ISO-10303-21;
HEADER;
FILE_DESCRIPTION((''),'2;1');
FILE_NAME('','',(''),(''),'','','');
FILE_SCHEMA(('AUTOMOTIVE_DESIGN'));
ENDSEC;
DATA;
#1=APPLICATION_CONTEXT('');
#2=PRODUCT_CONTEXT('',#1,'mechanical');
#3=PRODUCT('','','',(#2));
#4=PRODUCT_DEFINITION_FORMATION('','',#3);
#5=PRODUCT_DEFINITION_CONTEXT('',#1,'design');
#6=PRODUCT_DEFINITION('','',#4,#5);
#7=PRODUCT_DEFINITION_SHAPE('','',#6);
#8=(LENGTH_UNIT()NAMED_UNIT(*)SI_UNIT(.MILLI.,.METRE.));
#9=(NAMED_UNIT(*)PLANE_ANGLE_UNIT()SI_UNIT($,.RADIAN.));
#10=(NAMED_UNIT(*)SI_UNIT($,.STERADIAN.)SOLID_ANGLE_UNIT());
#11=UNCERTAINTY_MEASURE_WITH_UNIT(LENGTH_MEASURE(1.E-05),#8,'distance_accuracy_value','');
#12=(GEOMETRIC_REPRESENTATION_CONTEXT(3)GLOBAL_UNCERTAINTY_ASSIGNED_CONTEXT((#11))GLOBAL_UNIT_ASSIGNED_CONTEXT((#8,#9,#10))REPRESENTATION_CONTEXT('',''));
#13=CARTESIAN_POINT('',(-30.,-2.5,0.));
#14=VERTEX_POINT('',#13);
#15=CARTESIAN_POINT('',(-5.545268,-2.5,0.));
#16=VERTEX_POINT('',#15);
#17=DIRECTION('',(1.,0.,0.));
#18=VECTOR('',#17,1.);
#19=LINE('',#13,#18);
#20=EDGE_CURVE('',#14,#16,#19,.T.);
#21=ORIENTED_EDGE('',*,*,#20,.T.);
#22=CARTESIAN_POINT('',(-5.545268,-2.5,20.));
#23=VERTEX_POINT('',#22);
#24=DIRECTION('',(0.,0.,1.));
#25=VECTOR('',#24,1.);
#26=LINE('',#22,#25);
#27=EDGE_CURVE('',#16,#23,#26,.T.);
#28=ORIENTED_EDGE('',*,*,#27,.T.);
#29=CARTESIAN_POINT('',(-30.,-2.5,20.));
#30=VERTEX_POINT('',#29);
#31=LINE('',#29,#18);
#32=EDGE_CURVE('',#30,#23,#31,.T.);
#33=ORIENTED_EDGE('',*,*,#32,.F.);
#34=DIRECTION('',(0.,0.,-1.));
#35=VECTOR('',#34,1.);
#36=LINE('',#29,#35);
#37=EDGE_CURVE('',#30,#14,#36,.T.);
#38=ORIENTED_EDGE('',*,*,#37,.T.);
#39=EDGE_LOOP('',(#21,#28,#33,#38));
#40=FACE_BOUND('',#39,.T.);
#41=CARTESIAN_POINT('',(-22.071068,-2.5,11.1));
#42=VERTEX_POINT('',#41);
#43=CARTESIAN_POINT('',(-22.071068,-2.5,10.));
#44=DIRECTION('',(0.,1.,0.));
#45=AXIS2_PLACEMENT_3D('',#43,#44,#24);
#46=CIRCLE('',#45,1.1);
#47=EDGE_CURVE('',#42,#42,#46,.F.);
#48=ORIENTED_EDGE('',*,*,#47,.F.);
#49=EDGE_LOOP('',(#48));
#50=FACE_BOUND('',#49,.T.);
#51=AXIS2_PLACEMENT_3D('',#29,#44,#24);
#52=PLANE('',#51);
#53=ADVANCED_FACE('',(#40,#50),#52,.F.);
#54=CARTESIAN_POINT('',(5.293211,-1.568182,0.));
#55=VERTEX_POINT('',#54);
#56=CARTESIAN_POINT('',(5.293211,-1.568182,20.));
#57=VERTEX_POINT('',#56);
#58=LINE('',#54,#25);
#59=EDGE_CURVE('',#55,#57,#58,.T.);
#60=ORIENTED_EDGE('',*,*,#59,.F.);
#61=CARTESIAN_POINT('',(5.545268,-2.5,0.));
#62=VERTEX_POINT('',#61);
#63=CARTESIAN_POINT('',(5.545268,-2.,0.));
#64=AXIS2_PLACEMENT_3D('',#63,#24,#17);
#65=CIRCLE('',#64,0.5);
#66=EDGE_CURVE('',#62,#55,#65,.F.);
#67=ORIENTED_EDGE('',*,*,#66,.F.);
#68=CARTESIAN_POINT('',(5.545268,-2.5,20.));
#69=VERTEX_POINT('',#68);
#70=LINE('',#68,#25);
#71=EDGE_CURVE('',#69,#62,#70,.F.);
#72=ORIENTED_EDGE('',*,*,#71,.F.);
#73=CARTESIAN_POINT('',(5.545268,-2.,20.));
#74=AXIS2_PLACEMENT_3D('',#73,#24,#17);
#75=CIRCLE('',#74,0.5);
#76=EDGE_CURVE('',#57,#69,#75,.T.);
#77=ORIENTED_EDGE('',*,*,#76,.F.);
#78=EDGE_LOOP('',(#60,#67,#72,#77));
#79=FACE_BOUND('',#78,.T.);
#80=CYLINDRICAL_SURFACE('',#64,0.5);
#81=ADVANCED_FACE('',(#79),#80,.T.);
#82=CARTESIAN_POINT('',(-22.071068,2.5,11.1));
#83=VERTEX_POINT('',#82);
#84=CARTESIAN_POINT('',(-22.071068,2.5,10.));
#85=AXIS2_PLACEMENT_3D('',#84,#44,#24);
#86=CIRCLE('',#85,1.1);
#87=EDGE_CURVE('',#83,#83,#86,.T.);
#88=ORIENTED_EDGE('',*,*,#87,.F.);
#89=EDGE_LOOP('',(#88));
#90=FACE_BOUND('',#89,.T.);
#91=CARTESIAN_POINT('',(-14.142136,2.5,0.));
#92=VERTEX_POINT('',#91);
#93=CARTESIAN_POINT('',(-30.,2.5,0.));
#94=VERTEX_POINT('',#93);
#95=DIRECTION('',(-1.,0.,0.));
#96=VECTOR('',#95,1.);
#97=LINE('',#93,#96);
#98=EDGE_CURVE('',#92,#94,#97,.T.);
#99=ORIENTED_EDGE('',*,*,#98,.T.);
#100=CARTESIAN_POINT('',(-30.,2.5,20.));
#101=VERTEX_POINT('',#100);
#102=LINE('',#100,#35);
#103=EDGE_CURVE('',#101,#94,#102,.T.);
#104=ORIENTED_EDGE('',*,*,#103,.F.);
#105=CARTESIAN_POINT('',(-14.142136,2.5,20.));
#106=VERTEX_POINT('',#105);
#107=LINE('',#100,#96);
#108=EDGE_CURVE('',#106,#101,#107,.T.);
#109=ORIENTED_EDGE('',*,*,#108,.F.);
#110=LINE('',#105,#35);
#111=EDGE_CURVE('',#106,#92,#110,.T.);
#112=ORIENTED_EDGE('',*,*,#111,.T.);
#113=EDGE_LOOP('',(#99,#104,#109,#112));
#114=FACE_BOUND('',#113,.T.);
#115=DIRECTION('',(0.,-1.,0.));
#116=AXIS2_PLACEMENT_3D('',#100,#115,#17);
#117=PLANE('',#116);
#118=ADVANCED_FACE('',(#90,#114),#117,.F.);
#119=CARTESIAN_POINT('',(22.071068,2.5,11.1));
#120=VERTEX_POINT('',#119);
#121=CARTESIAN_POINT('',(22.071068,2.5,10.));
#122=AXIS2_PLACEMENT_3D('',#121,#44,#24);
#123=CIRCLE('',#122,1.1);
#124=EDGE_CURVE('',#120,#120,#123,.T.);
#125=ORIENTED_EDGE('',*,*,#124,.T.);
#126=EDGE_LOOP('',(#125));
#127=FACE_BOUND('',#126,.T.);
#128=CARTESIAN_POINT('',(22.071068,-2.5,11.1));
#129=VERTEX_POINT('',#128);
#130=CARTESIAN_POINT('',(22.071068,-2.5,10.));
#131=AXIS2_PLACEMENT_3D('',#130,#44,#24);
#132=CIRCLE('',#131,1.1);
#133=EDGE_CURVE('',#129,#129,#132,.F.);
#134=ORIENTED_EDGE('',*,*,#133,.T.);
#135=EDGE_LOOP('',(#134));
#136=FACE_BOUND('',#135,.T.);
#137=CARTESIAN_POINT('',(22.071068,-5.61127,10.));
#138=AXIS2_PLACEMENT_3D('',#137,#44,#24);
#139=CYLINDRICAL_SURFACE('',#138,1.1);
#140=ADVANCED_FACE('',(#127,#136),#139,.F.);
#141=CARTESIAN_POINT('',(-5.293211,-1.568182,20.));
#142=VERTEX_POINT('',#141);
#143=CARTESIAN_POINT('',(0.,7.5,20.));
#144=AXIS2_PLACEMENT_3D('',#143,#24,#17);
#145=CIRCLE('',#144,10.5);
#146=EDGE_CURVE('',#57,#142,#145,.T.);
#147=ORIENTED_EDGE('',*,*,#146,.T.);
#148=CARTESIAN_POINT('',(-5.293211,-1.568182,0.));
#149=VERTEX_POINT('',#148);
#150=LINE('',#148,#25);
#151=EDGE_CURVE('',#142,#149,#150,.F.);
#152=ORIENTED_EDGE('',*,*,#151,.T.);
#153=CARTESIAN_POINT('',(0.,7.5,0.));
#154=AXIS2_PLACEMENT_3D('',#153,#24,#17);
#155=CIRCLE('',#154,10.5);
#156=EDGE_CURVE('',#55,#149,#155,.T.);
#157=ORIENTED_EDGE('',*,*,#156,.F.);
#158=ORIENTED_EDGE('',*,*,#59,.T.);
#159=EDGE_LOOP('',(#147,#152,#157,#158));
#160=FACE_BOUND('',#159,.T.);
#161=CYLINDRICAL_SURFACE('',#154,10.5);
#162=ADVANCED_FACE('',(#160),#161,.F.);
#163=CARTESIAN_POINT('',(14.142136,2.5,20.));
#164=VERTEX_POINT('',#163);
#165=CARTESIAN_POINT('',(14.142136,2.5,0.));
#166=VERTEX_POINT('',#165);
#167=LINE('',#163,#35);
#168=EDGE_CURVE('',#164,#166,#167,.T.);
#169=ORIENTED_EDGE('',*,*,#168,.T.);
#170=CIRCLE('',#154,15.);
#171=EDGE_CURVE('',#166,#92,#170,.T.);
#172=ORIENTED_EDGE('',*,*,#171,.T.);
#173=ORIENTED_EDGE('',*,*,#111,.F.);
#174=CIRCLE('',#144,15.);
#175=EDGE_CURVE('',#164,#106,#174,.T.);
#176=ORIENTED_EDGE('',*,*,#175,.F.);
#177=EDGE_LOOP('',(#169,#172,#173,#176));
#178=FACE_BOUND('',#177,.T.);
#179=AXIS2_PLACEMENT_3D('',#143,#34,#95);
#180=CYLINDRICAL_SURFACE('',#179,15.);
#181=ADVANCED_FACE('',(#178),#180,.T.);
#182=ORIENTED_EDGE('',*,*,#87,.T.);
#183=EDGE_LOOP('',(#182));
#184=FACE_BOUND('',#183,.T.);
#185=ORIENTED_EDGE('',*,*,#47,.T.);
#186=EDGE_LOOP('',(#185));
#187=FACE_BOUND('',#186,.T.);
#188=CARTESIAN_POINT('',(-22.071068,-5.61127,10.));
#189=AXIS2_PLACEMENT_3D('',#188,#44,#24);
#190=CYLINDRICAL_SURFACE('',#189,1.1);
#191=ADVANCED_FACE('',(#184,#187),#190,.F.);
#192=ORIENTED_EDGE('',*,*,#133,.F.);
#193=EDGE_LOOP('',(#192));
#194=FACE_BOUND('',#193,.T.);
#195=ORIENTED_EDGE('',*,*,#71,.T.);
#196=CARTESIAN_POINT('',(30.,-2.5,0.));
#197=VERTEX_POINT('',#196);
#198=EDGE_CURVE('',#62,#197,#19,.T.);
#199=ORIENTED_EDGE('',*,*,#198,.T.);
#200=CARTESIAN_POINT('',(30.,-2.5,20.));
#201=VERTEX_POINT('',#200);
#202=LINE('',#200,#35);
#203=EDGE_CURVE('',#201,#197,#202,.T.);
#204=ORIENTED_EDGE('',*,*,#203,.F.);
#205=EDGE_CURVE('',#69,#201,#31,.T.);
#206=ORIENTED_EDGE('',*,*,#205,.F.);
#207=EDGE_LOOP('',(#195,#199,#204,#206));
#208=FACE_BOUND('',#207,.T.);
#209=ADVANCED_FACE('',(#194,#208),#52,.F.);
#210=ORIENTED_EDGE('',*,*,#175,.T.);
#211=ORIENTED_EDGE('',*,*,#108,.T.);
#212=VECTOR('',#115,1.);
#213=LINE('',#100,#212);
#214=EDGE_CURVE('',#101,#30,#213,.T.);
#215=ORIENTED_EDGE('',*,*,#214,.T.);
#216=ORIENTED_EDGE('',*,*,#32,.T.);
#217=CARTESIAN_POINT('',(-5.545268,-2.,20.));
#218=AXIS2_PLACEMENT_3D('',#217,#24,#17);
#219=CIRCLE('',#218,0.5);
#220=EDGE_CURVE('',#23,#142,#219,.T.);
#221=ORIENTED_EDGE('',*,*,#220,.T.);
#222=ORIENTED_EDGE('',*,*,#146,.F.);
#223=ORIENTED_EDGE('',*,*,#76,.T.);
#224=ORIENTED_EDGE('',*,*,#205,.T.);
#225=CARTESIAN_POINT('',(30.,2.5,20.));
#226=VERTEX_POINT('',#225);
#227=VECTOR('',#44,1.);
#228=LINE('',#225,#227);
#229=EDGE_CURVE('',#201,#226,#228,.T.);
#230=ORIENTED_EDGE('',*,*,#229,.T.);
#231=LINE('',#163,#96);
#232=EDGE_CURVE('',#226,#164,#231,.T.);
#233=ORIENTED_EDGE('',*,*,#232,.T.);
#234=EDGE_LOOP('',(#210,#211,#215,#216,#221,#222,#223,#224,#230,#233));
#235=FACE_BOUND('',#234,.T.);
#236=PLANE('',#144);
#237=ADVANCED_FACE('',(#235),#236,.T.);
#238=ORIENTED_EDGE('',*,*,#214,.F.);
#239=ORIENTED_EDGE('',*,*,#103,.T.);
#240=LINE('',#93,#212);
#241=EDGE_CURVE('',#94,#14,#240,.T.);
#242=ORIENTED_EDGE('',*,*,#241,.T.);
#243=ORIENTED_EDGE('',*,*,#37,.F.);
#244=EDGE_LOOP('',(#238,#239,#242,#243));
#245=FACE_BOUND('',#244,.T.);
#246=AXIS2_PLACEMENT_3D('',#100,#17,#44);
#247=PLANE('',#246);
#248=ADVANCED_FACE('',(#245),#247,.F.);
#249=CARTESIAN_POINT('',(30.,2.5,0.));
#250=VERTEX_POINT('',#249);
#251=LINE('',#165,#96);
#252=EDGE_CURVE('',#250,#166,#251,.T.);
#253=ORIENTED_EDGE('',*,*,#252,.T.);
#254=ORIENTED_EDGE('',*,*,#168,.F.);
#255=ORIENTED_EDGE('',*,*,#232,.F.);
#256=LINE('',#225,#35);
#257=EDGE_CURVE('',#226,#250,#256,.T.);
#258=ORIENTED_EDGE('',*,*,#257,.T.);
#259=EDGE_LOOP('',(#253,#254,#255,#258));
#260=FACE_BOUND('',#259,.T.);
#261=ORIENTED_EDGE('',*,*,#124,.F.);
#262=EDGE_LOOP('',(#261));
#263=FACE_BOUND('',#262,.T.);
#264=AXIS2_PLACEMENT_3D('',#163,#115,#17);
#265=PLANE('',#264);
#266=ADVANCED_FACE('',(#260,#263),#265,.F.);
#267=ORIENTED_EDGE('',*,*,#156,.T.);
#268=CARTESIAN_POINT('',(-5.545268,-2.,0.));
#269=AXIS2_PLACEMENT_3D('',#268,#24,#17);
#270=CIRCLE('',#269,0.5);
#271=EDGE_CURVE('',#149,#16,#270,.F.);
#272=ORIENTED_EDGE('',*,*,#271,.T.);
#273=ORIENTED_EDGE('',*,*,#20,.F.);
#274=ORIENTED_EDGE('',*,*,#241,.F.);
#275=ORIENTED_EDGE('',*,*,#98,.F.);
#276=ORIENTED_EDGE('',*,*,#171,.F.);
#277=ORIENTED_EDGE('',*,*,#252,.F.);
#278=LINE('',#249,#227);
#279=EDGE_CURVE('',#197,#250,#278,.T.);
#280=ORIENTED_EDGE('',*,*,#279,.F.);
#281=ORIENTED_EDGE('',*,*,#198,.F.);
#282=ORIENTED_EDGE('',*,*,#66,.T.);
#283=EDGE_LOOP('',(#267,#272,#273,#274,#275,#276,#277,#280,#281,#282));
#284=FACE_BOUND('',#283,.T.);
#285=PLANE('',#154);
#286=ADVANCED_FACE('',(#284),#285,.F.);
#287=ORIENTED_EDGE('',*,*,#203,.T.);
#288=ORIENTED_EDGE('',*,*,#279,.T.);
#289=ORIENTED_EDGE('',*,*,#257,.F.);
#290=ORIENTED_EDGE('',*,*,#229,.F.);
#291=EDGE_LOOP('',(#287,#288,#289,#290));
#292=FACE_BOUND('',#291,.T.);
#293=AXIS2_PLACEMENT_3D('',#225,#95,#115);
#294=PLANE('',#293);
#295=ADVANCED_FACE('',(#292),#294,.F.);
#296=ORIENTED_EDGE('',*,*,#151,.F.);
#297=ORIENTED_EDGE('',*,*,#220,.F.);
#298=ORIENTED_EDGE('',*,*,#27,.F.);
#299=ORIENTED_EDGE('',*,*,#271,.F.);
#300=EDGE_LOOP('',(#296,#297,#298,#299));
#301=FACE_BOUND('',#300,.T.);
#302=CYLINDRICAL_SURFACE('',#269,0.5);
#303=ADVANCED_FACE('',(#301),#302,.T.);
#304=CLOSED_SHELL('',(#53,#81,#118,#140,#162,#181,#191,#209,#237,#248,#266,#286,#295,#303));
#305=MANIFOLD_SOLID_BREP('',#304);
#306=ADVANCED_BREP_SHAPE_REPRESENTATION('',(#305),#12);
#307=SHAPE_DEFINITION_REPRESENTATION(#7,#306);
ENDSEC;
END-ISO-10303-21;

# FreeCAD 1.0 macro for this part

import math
import FreeCAD as App
import Part
import Sketcher
from FreeCAD import Vector


def edges_at(feature, points):
    """Names of the edges that pass closest to the given points."""
    edges = feature.Shape.Edges
    near = lambda p: min(range(len(edges)), key=lambda i: edges[i].distToShape(Part.Vertex(*p))[0])
    return sorted({f"Edge{near(p) + 1}" for p in points})

doc = App.newDocument("Part")
body = doc.addObject("PartDesign::Body", "Body")

# Sketch on XY plane
sketch1 = body.newObject("Sketcher::SketchObject", "Sketch")
sketch1.AttachmentSupport = (doc.getObject("XY_Plane"), [""])
sketch1.MapMode = "FlatFace"
sketch1.addGeometry(Part.LineSegment(Vector(30, 2, 0), Vector(14, 2, 0)), False)
sketch1.addGeometry(Part.ArcOfCircle(Part.Circle(Vector(0, 8, 0), Vector(0, 0, 1), 15), math.radians(-19), math.radians(199)), False)
sketch1.addGeometry(Part.LineSegment(Vector(-14, 2, 0), Vector(-30, 2, 0)), False)
sketch1.addGeometry(Part.LineSegment(Vector(-30, 2, 0), Vector(-30, -2, 0)), False)
sketch1.addGeometry(Part.LineSegment(Vector(-30, -2, 0), Vector(30, -2, 0)), False)
sketch1.addGeometry(Part.LineSegment(Vector(30, -2, 0), Vector(30, 2, 0)), False)
sketch1.addConstraint(Sketcher.Constraint("Coincident", 0, 2, 1, 1))
sketch1.addConstraint(Sketcher.Constraint("Coincident", 1, 2, 2, 1))
sketch1.addConstraint(Sketcher.Constraint("Coincident", 2, 2, 3, 1))
sketch1.addConstraint(Sketcher.Constraint("Coincident", 3, 2, 4, 1))
sketch1.addConstraint(Sketcher.Constraint("Coincident", 4, 2, 5, 1))
sketch1.addConstraint(Sketcher.Constraint("Coincident", 5, 2, 0, 1))
sketch1.addConstraint(Sketcher.Constraint("Horizontal", 0))
sketch1.addConstraint(Sketcher.Constraint("Horizontal", 2))
sketch1.addConstraint(Sketcher.Constraint("Vertical", 3))
sketch1.addConstraint(Sketcher.Constraint("Horizontal", 4))
sketch1.addConstraint(Sketcher.Constraint("Vertical", 5))
sketch1.addConstraint(Sketcher.Constraint("Symmetric", 2, 2, 4, 2, -1, 1))
sketch1.addConstraint(Sketcher.Constraint("Symmetric", 0, 2, 1, 2, -2))
sketch1.addConstraint(Sketcher.Constraint("Radius", 1, 15.0))
sketch1.addConstraint(Sketcher.Constraint("DistanceX", 4, 1, 4, 2, 60.0))
sketch1.addConstraint(Sketcher.Constraint("DistanceY", 3, 2, 3, 1, 5.0))
sketch1.addConstraint(Sketcher.Constraint("DistanceY", 0, 2, 1, 3, 5.0))
pad1 = body.newObject("PartDesign::Pad", "Pad")
pad1.Profile = sketch1
pad1.Length = 20

# Sketch on XY plane
sketch2 = body.newObject("Sketcher::SketchObject", "Sketch001")
sketch2.AttachmentSupport = (doc.getObject("XY_Plane"), [""])
sketch2.MapMode = "FlatFace"
sketch2.AttachmentOffset = App.Placement(Vector(0, 0, 20), App.Rotation())
sketch2.addGeometry(Part.Circle(Vector(0, 8, 0), Vector(0, 0, 1), 10), False)
sketch2.addConstraint(Sketcher.Constraint("PointOnObject", 0, 3, -2))
sketch2.addConstraint(Sketcher.Constraint("Diameter", 0, 21.0))
sketch2.addConstraint(Sketcher.Constraint("DistanceY", -1, 1, 0, 3, 7.5))
pocket1 = body.newObject("PartDesign::Pocket", "Pocket")
pocket1.Profile = sketch2
pocket1.Type = "ThroughAll"

# Sketch on XZ plane
sketch3 = body.newObject("Sketcher::SketchObject", "Sketch002")
sketch3.AttachmentSupport = (doc.getObject("XZ_Plane"), [""])
sketch3.MapMode = "FlatFace"
sketch3.AttachmentOffset = App.Placement(Vector(0, 0, -2.5), App.Rotation())
sketch3.addGeometry(Part.Circle(Vector(-22.1, 10, 0), Vector(0, 0, 1), 1.1), False)
sketch3.addGeometry(Part.Circle(Vector(22.1, 10, 0), Vector(0, 0, 1), 1.1), False)
sketch3.addConstraint(Sketcher.Constraint("Equal", 0, 1))
sketch3.addConstraint(Sketcher.Constraint("Symmetric", 0, 3, 1, 3, -2))
sketch3.addConstraint(Sketcher.Constraint("Diameter", 0, 2.2))
sketch3.addConstraint(Sketcher.Constraint("DistanceY", -1, 1, 0, 3, 10.0))
sketch3.addConstraint(Sketcher.Constraint("DistanceX", 0, 3, -1, 1, 22.071068))
pocket2 = body.newObject("PartDesign::Pocket", "Pocket001")
pocket2.Profile = sketch3
pocket2.Length = 5
pocket2.Reversed = True
doc.recompute()

fillet = body.newObject("PartDesign::Fillet", "Fillet")
fillet.Base = (pocket2, edges_at(pocket2, [(-3.202, -2.5, 10), (3.202, -2.5, 10)]))
fillet.Radius = 0.5

doc.recompute()
